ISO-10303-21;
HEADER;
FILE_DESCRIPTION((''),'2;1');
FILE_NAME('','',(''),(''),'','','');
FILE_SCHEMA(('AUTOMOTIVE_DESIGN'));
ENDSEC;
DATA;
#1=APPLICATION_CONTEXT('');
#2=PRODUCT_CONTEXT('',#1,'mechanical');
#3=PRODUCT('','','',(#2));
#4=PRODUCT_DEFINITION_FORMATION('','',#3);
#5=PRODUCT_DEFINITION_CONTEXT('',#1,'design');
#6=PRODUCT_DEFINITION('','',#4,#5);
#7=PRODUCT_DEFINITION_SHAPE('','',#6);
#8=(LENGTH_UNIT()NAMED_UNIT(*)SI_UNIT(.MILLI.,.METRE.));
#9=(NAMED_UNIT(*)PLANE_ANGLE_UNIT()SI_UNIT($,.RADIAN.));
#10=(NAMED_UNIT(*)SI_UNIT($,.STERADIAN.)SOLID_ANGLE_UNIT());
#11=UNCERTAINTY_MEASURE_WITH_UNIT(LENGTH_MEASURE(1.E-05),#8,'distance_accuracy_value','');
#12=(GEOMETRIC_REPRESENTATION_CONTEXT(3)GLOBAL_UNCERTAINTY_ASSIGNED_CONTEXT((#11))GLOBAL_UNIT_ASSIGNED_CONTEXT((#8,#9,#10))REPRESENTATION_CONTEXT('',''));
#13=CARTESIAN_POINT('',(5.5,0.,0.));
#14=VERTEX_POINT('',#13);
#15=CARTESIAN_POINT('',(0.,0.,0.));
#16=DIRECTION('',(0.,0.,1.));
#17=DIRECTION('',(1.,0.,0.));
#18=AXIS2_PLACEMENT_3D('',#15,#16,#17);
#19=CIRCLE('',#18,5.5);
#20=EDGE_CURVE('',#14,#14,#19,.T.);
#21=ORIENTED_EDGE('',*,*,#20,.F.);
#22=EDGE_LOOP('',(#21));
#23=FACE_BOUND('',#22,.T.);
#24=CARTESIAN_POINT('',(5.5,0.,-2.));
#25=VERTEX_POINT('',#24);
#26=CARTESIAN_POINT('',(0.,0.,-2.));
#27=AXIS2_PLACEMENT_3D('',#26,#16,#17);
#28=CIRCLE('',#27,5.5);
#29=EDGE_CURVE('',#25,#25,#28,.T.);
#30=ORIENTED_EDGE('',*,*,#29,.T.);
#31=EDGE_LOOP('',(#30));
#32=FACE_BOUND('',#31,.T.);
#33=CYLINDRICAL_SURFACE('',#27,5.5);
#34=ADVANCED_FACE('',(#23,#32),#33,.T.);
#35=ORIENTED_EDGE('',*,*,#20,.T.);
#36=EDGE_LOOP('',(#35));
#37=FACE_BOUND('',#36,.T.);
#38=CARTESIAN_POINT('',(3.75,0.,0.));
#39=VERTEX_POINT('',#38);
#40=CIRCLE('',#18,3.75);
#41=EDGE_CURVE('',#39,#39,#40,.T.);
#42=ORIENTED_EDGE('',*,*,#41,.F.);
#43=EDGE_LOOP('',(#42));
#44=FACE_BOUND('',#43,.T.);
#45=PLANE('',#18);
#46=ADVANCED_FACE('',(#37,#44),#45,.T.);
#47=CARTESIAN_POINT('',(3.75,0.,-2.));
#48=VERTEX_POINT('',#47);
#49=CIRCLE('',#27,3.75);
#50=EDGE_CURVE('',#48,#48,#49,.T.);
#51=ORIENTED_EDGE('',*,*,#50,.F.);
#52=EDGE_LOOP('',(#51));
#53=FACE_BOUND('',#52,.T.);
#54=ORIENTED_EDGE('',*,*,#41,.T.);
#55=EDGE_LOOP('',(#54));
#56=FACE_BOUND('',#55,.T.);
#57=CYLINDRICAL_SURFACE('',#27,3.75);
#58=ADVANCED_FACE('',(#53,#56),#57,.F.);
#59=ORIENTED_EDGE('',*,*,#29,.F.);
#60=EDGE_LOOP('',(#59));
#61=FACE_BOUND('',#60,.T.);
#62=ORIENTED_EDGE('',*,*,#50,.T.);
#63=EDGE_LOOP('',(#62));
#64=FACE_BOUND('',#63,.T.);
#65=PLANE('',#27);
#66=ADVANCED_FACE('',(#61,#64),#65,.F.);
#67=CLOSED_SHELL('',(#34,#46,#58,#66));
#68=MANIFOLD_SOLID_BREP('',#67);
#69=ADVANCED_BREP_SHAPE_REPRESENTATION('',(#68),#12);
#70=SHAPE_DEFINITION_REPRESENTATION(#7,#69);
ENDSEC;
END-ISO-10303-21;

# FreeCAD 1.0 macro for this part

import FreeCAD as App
import Part
import Sketcher

V = App.Vector
Q = App.Units.Quantity

doc = App.newDocument("Part")
params = doc.addObject("Spreadsheet::Sheet", "Params")
for row, (alias, value) in enumerate([
    ("sketch1_diameter", "11 mm"),
    ("sketch1_diameter2", "7.5 mm"),
    ("pad1_length", "2 mm"),
], start=1):
    params.set(f"A{row}", alias)
    params.set(f"B{row}", "=" + value)
    params.setAlias(f"B{row}", alias)

body = doc.addObject("PartDesign::Body", "Body")

# Sketch on XY plane
sketch1 = body.newObject("Sketcher::SketchObject", "Sketch")
sketch1.AttachmentSupport = (doc.getObject("XY_Plane"), [""])
sketch1.MapMode = "FlatFace"
sketch1.addGeometry([
    Part.Circle(V(0, 0, 0), V(0, 0, 1), 5.5),
    Part.Circle(V(0, 0, 0), V(0, 0, 1), 3.8),
], False)
sketch1.addConstraint([
    Sketcher.Constraint("Coincident", 0, 3, -1, 1),
    Sketcher.Constraint("Coincident", 1, 3, -1, 1),
    Sketcher.Constraint("Diameter", 0, Q("11 mm")),
    Sketcher.Constraint("Diameter", 1, Q("7.5 mm")),
])
sketch1.setExpression("Constraints[2]", "Params.sketch1_diameter")
sketch1.setExpression("Constraints[3]", "Params.sketch1_diameter2")
pad1 = body.newObject("PartDesign::Pad", "Pad")
pad1.Profile = sketch1
pad1.setExpression("Length", "Params.pad1_length")
pad1.Reversed = True

doc.recompute()
